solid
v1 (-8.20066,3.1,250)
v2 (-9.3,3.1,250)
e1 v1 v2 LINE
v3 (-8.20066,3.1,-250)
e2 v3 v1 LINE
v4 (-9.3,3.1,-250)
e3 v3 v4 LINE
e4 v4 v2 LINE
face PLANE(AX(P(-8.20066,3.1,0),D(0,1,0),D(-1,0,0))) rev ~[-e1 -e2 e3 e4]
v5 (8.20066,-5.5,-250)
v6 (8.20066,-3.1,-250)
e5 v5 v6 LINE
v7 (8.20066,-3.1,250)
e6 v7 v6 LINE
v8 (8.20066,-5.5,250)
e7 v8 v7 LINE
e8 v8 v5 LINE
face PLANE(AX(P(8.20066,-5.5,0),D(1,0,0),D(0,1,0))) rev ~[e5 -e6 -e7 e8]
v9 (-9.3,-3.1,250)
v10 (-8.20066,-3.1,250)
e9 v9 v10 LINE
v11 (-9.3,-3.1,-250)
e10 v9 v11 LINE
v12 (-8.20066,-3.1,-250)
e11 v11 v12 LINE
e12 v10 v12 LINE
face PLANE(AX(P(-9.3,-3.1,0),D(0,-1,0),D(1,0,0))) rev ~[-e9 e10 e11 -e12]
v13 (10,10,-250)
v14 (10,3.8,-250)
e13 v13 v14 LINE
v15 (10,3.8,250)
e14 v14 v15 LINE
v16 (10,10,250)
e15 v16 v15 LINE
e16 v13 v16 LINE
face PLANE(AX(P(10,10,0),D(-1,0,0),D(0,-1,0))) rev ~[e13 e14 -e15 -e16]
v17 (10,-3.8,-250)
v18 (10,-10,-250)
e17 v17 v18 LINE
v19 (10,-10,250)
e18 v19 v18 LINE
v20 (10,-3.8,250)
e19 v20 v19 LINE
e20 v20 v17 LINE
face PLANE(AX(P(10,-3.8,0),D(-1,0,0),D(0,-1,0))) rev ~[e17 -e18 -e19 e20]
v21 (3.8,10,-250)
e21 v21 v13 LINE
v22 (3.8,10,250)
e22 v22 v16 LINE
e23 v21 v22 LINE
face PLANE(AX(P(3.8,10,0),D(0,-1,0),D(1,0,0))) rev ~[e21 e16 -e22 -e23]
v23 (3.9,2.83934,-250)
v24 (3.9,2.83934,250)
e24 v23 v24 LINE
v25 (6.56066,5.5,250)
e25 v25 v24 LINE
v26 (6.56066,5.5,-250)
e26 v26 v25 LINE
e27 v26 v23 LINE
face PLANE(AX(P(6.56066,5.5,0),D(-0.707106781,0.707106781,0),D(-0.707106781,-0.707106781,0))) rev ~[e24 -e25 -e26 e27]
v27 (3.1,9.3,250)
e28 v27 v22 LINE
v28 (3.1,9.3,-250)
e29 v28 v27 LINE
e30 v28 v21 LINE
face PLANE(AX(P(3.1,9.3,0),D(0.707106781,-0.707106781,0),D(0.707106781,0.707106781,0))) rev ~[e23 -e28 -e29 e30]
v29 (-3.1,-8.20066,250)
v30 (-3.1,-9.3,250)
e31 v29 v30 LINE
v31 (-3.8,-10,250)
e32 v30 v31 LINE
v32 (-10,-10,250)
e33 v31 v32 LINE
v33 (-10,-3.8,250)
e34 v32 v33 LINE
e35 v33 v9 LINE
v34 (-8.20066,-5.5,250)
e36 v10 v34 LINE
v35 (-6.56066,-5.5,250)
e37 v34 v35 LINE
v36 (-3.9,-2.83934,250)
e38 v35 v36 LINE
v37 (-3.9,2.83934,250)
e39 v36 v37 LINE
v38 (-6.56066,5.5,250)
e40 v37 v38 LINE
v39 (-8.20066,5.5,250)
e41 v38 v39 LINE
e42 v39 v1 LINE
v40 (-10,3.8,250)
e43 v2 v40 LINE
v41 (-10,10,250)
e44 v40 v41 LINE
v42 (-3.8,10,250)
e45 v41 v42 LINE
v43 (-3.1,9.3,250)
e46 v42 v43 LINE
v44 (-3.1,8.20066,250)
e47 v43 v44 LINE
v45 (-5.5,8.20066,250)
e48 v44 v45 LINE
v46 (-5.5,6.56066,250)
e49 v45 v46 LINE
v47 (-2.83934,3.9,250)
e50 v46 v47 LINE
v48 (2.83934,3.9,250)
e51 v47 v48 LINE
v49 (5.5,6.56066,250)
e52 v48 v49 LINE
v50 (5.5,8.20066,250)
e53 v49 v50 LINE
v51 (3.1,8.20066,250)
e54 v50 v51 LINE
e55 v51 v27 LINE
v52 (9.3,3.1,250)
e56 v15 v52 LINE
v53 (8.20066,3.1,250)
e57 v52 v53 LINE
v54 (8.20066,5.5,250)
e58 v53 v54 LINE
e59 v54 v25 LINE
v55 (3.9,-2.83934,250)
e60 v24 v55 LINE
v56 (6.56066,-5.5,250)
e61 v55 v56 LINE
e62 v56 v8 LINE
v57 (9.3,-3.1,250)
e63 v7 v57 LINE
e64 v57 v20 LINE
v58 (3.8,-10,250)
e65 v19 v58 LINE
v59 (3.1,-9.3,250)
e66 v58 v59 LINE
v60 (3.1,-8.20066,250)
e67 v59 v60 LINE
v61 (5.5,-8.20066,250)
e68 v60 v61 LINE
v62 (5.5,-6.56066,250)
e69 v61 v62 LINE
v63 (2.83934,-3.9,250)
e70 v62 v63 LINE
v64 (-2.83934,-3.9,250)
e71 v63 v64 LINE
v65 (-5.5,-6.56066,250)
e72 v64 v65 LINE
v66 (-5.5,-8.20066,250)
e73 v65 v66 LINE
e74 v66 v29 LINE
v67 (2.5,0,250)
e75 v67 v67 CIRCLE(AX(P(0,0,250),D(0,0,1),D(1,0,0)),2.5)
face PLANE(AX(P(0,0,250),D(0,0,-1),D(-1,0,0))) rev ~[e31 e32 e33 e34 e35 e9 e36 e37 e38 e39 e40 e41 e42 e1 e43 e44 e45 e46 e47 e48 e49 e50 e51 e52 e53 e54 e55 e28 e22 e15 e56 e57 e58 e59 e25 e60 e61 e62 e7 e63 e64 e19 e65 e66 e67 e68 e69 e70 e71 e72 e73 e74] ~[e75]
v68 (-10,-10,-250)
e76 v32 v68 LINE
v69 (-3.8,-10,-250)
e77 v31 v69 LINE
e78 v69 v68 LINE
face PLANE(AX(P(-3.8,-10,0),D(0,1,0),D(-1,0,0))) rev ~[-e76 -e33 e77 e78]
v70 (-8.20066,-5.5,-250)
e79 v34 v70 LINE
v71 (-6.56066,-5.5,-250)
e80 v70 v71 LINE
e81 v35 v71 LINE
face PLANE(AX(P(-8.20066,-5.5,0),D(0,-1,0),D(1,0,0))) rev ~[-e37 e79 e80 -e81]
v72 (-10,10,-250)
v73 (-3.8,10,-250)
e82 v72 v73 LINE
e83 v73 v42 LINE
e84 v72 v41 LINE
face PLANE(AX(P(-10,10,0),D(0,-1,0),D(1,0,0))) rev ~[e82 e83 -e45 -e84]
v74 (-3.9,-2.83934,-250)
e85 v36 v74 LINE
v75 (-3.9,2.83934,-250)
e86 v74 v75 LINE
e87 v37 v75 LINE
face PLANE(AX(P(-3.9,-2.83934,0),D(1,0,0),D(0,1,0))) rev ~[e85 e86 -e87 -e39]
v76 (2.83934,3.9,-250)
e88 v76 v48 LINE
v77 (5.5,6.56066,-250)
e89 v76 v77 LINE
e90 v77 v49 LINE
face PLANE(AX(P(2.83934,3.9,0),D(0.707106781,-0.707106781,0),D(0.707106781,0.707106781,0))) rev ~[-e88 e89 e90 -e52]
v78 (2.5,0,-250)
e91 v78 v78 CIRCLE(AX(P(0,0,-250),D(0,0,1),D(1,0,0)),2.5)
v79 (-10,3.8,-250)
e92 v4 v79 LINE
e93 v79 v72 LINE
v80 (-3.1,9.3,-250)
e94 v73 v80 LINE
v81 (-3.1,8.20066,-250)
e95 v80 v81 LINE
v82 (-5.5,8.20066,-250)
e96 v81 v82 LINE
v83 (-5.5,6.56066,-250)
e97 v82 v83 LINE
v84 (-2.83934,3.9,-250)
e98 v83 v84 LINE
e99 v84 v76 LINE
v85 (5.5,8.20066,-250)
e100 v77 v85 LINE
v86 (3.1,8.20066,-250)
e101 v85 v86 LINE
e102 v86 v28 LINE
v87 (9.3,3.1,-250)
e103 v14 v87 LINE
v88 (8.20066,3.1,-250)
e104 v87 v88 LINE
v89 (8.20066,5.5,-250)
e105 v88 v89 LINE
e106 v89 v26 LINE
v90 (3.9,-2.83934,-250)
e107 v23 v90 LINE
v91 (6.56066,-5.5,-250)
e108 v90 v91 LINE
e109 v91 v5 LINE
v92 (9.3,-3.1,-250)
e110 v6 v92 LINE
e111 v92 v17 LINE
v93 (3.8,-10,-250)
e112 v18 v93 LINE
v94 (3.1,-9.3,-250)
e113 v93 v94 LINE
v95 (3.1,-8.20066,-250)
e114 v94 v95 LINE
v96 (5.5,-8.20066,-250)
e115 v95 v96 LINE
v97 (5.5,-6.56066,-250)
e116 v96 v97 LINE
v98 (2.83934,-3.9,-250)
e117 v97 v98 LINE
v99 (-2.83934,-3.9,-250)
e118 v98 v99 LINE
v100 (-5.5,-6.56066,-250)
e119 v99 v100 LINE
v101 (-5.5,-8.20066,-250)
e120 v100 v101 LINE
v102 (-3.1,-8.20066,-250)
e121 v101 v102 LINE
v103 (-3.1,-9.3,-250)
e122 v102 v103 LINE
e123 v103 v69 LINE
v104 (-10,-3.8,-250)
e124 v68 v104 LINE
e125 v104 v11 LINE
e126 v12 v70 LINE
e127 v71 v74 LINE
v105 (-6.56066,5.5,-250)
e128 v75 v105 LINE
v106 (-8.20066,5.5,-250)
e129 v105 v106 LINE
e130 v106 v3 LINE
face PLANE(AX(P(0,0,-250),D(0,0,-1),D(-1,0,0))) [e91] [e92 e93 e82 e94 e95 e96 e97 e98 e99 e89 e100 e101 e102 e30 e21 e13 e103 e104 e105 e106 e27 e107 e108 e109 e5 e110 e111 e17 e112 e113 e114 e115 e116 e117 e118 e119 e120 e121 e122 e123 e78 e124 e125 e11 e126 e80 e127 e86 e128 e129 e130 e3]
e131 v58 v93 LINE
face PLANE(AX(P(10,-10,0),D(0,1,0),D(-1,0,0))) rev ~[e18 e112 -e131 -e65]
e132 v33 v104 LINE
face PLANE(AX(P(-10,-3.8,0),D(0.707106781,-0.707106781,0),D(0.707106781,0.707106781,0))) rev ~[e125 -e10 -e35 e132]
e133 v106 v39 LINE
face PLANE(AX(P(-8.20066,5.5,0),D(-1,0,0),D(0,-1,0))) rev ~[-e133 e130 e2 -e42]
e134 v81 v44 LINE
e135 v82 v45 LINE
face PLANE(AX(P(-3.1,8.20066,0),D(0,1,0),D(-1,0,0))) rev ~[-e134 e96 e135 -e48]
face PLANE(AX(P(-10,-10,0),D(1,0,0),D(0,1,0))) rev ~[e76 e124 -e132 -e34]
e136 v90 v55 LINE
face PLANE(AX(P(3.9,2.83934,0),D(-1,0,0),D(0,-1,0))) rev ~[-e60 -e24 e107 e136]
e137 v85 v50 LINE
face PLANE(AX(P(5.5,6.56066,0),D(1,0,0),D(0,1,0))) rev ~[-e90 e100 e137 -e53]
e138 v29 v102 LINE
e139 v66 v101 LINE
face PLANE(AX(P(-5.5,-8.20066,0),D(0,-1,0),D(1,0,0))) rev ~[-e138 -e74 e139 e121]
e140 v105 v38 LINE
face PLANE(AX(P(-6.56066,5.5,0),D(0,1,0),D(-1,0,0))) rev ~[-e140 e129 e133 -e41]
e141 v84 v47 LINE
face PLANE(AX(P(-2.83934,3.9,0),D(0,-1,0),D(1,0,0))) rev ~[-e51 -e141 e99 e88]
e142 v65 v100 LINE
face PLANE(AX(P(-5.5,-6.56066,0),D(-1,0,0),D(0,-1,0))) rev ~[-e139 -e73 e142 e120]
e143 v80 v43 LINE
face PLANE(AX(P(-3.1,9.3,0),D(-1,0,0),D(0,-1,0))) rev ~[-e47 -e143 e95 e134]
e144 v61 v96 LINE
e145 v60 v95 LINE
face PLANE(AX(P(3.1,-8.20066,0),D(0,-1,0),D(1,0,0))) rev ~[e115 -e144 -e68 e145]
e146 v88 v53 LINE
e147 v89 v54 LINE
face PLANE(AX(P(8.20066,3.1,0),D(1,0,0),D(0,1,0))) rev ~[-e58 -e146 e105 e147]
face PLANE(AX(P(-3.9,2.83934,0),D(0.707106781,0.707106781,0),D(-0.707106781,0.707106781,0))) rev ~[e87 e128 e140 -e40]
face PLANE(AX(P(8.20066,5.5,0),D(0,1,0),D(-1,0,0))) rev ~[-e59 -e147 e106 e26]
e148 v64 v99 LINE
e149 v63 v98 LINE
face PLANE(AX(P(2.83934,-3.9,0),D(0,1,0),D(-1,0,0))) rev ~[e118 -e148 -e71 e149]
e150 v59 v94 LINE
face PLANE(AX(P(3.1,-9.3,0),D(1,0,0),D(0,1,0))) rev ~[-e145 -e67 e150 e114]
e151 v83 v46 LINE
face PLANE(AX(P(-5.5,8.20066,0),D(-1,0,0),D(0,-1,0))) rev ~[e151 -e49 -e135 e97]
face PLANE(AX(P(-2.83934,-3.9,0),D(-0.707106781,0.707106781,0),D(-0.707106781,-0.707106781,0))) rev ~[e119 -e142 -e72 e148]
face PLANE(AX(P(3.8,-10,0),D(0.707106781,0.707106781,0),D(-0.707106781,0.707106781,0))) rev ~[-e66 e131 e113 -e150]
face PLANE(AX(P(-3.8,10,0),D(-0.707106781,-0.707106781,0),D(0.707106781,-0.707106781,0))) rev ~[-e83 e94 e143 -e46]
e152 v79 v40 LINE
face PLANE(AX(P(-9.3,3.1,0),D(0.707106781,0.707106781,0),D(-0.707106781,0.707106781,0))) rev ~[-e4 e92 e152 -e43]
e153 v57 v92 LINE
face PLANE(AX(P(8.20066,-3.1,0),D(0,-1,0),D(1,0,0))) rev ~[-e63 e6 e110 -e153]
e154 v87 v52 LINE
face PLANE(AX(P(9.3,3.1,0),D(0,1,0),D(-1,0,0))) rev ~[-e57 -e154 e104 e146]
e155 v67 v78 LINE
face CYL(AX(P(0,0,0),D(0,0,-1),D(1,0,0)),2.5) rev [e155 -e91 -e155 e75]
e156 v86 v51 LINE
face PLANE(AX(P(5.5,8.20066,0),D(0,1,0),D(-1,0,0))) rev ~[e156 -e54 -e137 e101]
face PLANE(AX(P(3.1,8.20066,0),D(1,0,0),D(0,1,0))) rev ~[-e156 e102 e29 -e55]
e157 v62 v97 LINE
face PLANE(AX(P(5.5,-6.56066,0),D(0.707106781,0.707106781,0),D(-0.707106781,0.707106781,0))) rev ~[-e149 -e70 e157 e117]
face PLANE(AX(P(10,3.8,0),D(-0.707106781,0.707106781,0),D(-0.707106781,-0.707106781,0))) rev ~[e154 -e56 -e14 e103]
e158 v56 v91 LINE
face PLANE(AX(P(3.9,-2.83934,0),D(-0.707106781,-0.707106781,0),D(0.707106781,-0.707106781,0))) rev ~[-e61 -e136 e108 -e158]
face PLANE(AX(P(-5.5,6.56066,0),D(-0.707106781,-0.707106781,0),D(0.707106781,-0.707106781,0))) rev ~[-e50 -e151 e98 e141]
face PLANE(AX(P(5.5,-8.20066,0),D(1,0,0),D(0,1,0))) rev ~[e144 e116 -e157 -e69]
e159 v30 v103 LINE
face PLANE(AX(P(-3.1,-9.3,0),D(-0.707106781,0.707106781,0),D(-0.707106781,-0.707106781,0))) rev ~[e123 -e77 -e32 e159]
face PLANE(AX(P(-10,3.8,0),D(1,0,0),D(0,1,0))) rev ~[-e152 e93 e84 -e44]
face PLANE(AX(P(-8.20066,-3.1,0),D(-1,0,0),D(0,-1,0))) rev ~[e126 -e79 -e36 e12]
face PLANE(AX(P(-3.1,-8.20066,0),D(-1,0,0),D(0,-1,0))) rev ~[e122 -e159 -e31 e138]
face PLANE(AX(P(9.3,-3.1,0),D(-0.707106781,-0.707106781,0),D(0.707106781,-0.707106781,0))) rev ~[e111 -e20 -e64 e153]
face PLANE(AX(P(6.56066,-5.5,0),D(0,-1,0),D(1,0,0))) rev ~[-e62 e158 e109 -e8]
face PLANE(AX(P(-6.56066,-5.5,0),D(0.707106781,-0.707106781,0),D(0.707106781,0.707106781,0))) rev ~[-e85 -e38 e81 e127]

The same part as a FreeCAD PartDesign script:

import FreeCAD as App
import Part
import Sketcher
from FreeCAD import Vector


def add_polygon(sketch, points):
    """Adds a closed chain of lines whose ends are joined by coincident constraints."""
    first, n = sketch.GeometryCount, len(points)
    for a, b in zip(points, points[1:] + points[:1]):
        sketch.addGeometry(Part.LineSegment(App.Vector(*a, 0), App.Vector(*b, 0)), False)
    for i in range(n):
        sketch.addConstraint(Sketcher.Constraint("Coincident", first + i, 2, first + (i + 1) % n, 1))

doc = App.newDocument("Part")
body = doc.addObject("PartDesign::Body", "Body")

sketch1 = doc.addObject("Sketcher::SketchObject", "Sketch")
body.addObject(sketch1)
sketch1.AttachmentSupport = (doc.XY_Plane, [""])
sketch1.MapMode = "FlatFace"
add_polygon(sketch1, [(6.6, -5.5), (3.9, -2.8), (3.9, 2.8), (6.6, 5.5), (8.2, 5.5), (8.2, 3.1), (9.3, 3.1), (10, 3.8), (10, 10), (3.8, 10), (3.1, 9.3), (3.1, 8.2), (5.5, 8.2), (5.5, 6.6), (2.8, 3.9), (-2.8, 3.9), (-5.5, 6.6), (-5.5, 8.2), (-3.1, 8.2), (-3.1, 9.3), (-3.8, 10), (-10, 10), (-10, 3.8), (-9.3, 3.1), (-8.2, 3.1), (-8.2, 5.5), (-6.6, 5.5), (-3.9, 2.8), (-3.9, -2.8), (-6.6, -5.5), (-8.2, -5.5), (-8.2, -3.1), (-9.3, -3.1), (-10, -3.8), (-10, -10), (-3.8, -10), (-3.1, -9.3), (-3.1, -8.2), (-5.5, -8.2), (-5.5, -6.6), (-2.8, -3.9), (2.8, -3.9), (5.5, -6.6), (5.5, -8.2), (3.1, -8.2), (3.1, -9.3), (3.8, -10), (10, -10), (10, -3.8), (9.3, -3.1), (8.2, -3.1), (8.2, -5.5)])
sketch1.addGeometry(Part.Circle(Vector(0, 0, 0), Vector(0, 0, 1), 2.5), False)
sketch1.addConstraint([
    Sketcher.Constraint("Vertical", 1),
    Sketcher.Constraint("Horizontal", 3),
    Sketcher.Constraint("Vertical", 4),
    Sketcher.Constraint("Horizontal", 5),
    Sketcher.Constraint("Vertical", 7),
    Sketcher.Constraint("Horizontal", 8),
    Sketcher.Constraint("Vertical", 10),
    Sketcher.Constraint("Horizontal", 11),
    Sketcher.Constraint("Vertical", 12),
    Sketcher.Constraint("Horizontal", 14),
    Sketcher.Constraint("Vertical", 16),
    Sketcher.Constraint("Horizontal", 17),
    Sketcher.Constraint("Vertical", 18),
    Sketcher.Constraint("Horizontal", 20),
    Sketcher.Constraint("Vertical", 21),
    Sketcher.Constraint("Horizontal", 23),
    Sketcher.Constraint("Vertical", 24),
    Sketcher.Constraint("Horizontal", 25),
    Sketcher.Constraint("Vertical", 27),
    Sketcher.Constraint("Horizontal", 29),
    Sketcher.Constraint("Vertical", 30),
    Sketcher.Constraint("Horizontal", 31),
    Sketcher.Constraint("Vertical", 33),
    Sketcher.Constraint("Horizontal", 34),
    Sketcher.Constraint("Vertical", 36),
    Sketcher.Constraint("Horizontal", 37),
    Sketcher.Constraint("Vertical", 38),
    Sketcher.Constraint("Horizontal", 40),
    Sketcher.Constraint("Vertical", 42),
    Sketcher.Constraint("Horizontal", 43),
    Sketcher.Constraint("Vertical", 44),
    Sketcher.Constraint("Horizontal", 46),
    Sketcher.Constraint("Vertical", 47),
    Sketcher.Constraint("Horizontal", 49),
    Sketcher.Constraint("Vertical", 50),
    Sketcher.Constraint("Horizontal", 51),
    Sketcher.Constraint("Coincident", 52, 3, -1, 1),
    Sketcher.Constraint("Symmetric", 0, 2, 26, 2, -1, 1),
    Sketcher.Constraint("Symmetric", 2, 2, 28, 2, -1, 1),
    Sketcher.Constraint("Symmetric", 4, 2, 30, 2, -1, 1),
    Sketcher.Constraint("Symmetric", 6, 2, 32, 2, -1, 1),
    Sketcher.Constraint("Symmetric", 8, 2, 34, 2, -1, 1),
    Sketcher.Constraint("Symmetric", 9, 2, 35, 2, -1, 1),
    Sketcher.Constraint("Symmetric", 11, 2, 37, 2, -1, 1),
    Sketcher.Constraint("Symmetric", 13, 2, 39, 2, -1, 1),
    Sketcher.Constraint("Symmetric", 15, 2, 41, 2, -1, 1),
    Sketcher.Constraint("Symmetric", 17, 2, 43, 2, -1, 1),
    Sketcher.Constraint("Symmetric", 19, 2, 45, 2, -1, 1),
    Sketcher.Constraint("Symmetric", 21, 2, 47, 2, -1, 1),
    Sketcher.Constraint("Symmetric", 22, 2, 48, 2, -1, 1),
    Sketcher.Constraint("Symmetric", 24, 2, 50, 2, -1, 1),
    Sketcher.Constraint("Symmetric", 12, 2, 15, 2, -2),
    Sketcher.Constraint("Symmetric", 10, 2, 17, 2, -2),
    Sketcher.Constraint("Symmetric", 8, 2, 19, 2, -2),
    Sketcher.Constraint("Symmetric", 6, 2, 21, 2, -2),
    Sketcher.Constraint("Symmetric", 5, 2, 22, 2, -2),
    Sketcher.Constraint("Symmetric", 3, 2, 24, 2, -2),
    Sketcher.Constraint("Perpendicular", 0, 2),
    Sketcher.Constraint("Parallel", 2, 6),
    Sketcher.Constraint("Parallel", 6, 9),
    Sketcher.Constraint("Parallel", 9, 13),
    Sketcher.Constraint("Perpendicular", 13, 15),
    Sketcher.Constraint("Parallel", 15, 19),
    Sketcher.Constraint("Parallel", 19, 22),
    Sketcher.Constraint("Parallel", 22, 26),
    Sketcher.Constraint("Perpendicular", 26, 28),
    Sketcher.Constraint("Parallel", 28, 32),
    Sketcher.Constraint("Parallel", 35, 39),
    Sketcher.Constraint("Perpendicular", 39, 41),
    Sketcher.Constraint("Parallel", 41, 45),
    Sketcher.Constraint("Horizontal", 1, 2, 26, 2),
    Sketcher.Constraint("Equal", 40, 1),
    Sketcher.Constraint("Equal", 43, 4),
    Sketcher.Constraint("Equal", 46, 7),
    Sketcher.Constraint("Equal", 49, 10),
    Sketcher.Constraint("Equal", 51, 12),
    Sketcher.Constraint("Equal", 6, 9),
    Sketcher.Constraint("Equal", 2, 13),
    Sketcher.Constraint("Diameter", 52, 5.0),
    Sketcher.Constraint("DistanceX", 8, 2, 8, 1, 6.2),
    Sketcher.Constraint("DistanceX", 11, 1, 11, 2, 2.4),
    Sketcher.Constraint("DistanceX", -1, 1, 6, 2, 10.0),
    Sketcher.Constraint("DistanceX", 3, 1, 3, 2, 1.64),
    Sketcher.Constraint("DistanceX", -1, 1, 0, 2, 3.9),
    Sketcher.Constraint("DistanceY", -1, 1, 2, 2, 5.5),
    Sketcher.Constraint("DistanceX", 5, 1, 5, 2, 1.09934),
])
pad1 = doc.addObject("PartDesign::Pad", "Pad")
body.addObject(pad1)
pad1.Profile = sketch1
pad1.Length = 500
pad1.Midplane = True

doc.recompute()
